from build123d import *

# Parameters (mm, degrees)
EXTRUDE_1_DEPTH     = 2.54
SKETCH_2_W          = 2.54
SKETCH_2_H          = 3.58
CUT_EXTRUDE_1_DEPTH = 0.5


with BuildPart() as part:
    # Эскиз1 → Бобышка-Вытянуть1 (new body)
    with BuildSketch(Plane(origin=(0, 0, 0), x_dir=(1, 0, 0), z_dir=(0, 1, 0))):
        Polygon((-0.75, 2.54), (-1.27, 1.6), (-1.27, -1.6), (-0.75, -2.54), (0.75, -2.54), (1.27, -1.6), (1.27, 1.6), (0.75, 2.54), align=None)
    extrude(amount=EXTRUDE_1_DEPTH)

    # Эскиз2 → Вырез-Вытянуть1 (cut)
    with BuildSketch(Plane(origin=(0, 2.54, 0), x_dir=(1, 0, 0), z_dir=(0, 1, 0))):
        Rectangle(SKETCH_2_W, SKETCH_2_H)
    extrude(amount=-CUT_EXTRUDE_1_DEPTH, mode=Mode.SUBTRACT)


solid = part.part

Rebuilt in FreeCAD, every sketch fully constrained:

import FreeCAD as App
import Part
import Sketcher

V = App.Vector
Q = App.Units.Quantity


def add_polygon(sketch, points):
    """Adds a closed chain of lines whose ends are joined by coincident constraints."""
    first, n = sketch.GeometryCount, len(points)
    for a, b in zip(points, points[1:] + points[:1]):
        sketch.addGeometry(Part.LineSegment(App.Vector(*a, 0), App.Vector(*b, 0)), False)
    for i in range(n):
        sketch.addConstraint(Sketcher.Constraint("Coincident", first + i, 2, first + (i + 1) % n, 1))

doc = App.newDocument("Part")
body = doc.addObject("PartDesign::Body", "Body")

# Sketch on XZ plane
sketch1 = doc.addObject("Sketcher::SketchObject", "Sketch")
body.addObject(sketch1)
sketch1.AttachmentSupport = (doc.XZ_Plane, [""])
sketch1.MapMode = "FlatFace"
add_polygon(sketch1, [(-0.8, -2.5), (-1.3, -1.6), (-1.3, 1.6), (-0.8, 2.5), (0.8, 2.5), (1.3, 1.6), (1.3, -1.6), (0.8, -2.5)])  # lines 0-7
sketch1.addConstraint([
    Sketcher.Constraint("Vertical", 1),
    Sketcher.Constraint("Horizontal", 3),
    Sketcher.Constraint("Vertical", 5),
    Sketcher.Constraint("Horizontal", 7),
    Sketcher.Constraint("Symmetric", 0, 2, 4, 2, -1, 1),
    Sketcher.Constraint("Symmetric", 2, 2, 6, 2, -1, 1),
    Sketcher.Constraint("Parallel", 0, 4),
    Sketcher.Constraint("Parallel", 2, 6),
    Sketcher.Constraint("Horizontal", 1, 2, 4, 2),
    Sketcher.Constraint("Vertical", 3, 2, 6, 2),
    Sketcher.Constraint("DistanceX", 3, 1, 3, 2, Q("1.5 mm")),
    Sketcher.Constraint("DistanceY", 1, 1, 1, 2, Q("3.2 mm")),
    Sketcher.Constraint("DistanceX", 0, 2, -1, 1, Q("1.27 mm")),
    Sketcher.Constraint("DistanceY", -1, 1, 2, 2, Q("2.54 mm")),
])
pad1 = doc.addObject("PartDesign::Pad", "Pad")
body.addObject(pad1)
pad1.Profile = sketch1
pad1.Length = 2.54
pad1.Reversed = True

# Sketch on XZ plane
sketch2 = doc.addObject("Sketcher::SketchObject", "Sketch001")
body.addObject(sketch2)
sketch2.AttachmentSupport = (doc.XZ_Plane, [""])
sketch2.MapMode = "FlatFace"
sketch2.AttachmentOffset = App.Placement(V(0, 0, -2.54), App.Rotation())
add_polygon(sketch2, [(-1.3, -1.8), (-1.3, 1.8), (1.3, 1.8), (1.3, -1.8)])  # lines 0-3
sketch2.addConstraint([
    Sketcher.Constraint("Vertical", 0),
    Sketcher.Constraint("Horizontal", 1),
    Sketcher.Constraint("Vertical", 2),
    Sketcher.Constraint("Horizontal", 3),
    Sketcher.Constraint("Symmetric", 0, 2, 2, 2, -1, 1),
    Sketcher.Constraint("DistanceX", 1, 1, 1, 2, Q("2.54 mm")),
    Sketcher.Constraint("DistanceY", 0, 1, 0, 2, Q("3.58 mm")),
])
pocket1 = doc.addObject("PartDesign::Pocket", "Pocket")
body.addObject(pocket1)
pocket1.Profile = sketch2
pocket1.Length = 0.5
pocket1.Reversed = True

doc.recompute()
